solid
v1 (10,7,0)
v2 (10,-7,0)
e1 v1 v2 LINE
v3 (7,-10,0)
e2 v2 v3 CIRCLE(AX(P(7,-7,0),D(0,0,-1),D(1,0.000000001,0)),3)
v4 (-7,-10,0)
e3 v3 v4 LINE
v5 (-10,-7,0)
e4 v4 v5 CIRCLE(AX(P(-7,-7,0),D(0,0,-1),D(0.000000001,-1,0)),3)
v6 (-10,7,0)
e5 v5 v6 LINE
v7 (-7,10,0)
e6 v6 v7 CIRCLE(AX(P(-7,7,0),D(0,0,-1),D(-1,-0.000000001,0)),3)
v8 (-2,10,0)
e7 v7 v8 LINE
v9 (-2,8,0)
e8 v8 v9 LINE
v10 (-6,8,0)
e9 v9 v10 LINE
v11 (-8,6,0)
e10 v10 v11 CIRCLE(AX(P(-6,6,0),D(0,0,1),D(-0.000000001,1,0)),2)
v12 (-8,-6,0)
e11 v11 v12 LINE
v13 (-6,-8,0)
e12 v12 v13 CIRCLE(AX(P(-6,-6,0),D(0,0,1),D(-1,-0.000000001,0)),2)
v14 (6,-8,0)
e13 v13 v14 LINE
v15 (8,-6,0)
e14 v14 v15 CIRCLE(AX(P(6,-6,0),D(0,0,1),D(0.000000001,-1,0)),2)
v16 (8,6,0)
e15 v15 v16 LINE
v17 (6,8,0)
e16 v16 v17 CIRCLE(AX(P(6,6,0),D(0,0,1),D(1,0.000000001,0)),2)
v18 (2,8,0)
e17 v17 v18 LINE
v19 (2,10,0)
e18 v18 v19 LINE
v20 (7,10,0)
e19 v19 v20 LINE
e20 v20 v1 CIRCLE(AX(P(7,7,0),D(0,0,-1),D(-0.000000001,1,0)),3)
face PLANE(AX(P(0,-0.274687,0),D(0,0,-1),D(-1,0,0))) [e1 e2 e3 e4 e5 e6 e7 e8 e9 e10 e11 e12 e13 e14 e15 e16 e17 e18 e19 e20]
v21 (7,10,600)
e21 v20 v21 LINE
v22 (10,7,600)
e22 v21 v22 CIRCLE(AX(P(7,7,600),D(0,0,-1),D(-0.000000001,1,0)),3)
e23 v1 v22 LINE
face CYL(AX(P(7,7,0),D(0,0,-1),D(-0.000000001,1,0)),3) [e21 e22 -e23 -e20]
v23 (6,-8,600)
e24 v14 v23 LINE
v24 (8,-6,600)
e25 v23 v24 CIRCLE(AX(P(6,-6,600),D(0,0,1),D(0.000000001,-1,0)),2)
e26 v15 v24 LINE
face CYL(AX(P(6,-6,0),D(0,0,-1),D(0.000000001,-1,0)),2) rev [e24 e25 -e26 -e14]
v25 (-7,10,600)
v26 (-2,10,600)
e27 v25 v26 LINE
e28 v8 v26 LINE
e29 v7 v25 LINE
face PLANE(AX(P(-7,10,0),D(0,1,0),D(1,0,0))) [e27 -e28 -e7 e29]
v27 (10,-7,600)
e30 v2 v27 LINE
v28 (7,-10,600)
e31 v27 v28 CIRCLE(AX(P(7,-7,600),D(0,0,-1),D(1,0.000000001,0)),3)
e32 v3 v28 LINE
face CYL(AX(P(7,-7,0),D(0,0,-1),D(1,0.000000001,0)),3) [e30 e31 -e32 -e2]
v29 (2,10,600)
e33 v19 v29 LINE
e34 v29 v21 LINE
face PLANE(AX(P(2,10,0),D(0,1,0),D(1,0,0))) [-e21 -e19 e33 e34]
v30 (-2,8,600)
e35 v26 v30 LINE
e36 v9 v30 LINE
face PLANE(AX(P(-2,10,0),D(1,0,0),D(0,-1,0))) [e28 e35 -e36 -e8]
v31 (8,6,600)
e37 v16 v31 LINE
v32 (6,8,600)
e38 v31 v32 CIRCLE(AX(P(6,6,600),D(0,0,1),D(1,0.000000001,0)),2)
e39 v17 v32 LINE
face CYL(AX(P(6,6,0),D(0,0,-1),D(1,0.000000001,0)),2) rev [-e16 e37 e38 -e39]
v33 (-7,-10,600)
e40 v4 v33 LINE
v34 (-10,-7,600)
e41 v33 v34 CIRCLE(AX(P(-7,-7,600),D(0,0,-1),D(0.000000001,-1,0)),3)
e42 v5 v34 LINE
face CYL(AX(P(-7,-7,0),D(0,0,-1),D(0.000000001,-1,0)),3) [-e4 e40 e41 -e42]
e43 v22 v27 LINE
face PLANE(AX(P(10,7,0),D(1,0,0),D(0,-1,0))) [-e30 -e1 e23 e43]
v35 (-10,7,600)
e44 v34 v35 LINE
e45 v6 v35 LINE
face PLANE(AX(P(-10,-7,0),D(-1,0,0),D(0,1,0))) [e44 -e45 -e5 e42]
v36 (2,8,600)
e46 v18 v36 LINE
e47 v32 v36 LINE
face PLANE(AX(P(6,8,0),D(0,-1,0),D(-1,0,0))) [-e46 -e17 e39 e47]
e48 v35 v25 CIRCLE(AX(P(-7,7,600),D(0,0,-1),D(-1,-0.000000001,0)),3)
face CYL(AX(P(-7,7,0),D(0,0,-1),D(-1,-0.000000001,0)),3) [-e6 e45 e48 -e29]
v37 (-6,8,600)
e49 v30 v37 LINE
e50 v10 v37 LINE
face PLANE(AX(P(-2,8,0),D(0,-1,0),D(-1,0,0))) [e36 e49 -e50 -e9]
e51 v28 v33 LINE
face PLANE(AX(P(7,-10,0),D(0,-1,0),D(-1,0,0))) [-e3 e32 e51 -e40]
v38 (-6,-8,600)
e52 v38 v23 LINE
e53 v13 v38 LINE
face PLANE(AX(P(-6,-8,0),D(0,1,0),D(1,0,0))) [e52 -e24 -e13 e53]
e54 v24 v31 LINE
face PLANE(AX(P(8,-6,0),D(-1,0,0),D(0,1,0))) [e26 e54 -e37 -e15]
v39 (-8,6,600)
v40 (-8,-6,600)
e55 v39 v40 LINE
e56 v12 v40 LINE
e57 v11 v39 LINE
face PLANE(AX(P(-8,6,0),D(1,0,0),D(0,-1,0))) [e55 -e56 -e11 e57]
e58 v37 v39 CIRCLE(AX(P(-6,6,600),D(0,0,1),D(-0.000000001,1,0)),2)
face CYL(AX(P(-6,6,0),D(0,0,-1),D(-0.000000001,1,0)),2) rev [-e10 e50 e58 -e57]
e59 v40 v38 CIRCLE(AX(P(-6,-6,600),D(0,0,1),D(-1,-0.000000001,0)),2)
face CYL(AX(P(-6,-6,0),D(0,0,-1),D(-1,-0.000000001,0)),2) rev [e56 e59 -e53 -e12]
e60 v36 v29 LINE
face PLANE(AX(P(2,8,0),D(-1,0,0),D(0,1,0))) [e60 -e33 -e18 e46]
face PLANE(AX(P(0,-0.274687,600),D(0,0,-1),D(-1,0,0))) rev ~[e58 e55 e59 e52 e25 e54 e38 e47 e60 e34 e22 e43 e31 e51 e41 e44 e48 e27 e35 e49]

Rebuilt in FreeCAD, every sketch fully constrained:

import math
import FreeCAD as App
import Part
import Sketcher

V = App.Vector

doc = App.newDocument("Part")
params = doc.addObject("Spreadsheet::Sheet", "Params")
for row, (alias, value) in enumerate([
    ("sketch1_radius", "3 mm"),
    ("sketch1_radius2", "2 mm"),
    ("sketch1_width", "14 mm"),
    ("sketch1_width2", "5 mm"),
    ("sketch1_width3", "4 mm"),
    ("pad1_length", "600 mm"),
], start=1):
    params.set(f"A{row}", alias)
    params.set(f"B{row}", "=" + value)
    params.setAlias(f"B{row}", alias)

body = doc.addObject("PartDesign::Body", "Body")

# Sketch on XY plane
sketch1 = doc.addObject("Sketcher::SketchObject", "Sketch")
body.addObject(sketch1)
sketch1.AttachmentSupport = (doc.XY_Plane, [""])
sketch1.MapMode = "FlatFace"
sketch1.addGeometry([
    Part.LineSegment(V(-10, 7, 0), V(-10, -7, 0)),  # 0
    Part.ArcOfCircle(Part.Circle(V(-7, -7, 0), V(0, 0, 1), 3), math.radians(180), math.radians(270)),  # 1
    Part.LineSegment(V(-7, -10, 0), V(7, -10, 0)),  # 2
    Part.ArcOfCircle(Part.Circle(V(7, -7, 0), V(0, 0, 1), 3), math.radians(-90), math.radians(0)),  # 3
    Part.LineSegment(V(10, -7, 0), V(10, 7, 0)),  # 4
    Part.ArcOfCircle(Part.Circle(V(7, 7, 0), V(0, 0, 1), 3), math.radians(0), math.radians(90)),  # 5
    Part.LineSegment(V(7, 10, 0), V(2, 10, 0)),  # 6
    Part.LineSegment(V(2, 10, 0), V(2, 8, 0)),  # 7
    Part.LineSegment(V(2, 8, 0), V(6, 8, 0)),  # 8
    Part.ArcOfCircle(Part.Circle(V(6, 6, 0), V(0, 0, 1), 2), math.radians(0), math.radians(90)),  # 9
    Part.LineSegment(V(8, 6, 0), V(8, -6, 0)),  # 10
    Part.ArcOfCircle(Part.Circle(V(6, -6, 0), V(0, 0, 1), 2), math.radians(-90), math.radians(0)),  # 11
    Part.LineSegment(V(6, -8, 0), V(-6, -8, 0)),  # 12
    Part.ArcOfCircle(Part.Circle(V(-6, -6, 0), V(0, 0, 1), 2), math.radians(-180), math.radians(-90)),  # 13
    Part.LineSegment(V(-8, -6, 0), V(-8, 6, 0)),  # 14
    Part.ArcOfCircle(Part.Circle(V(-6, 6, 0), V(0, 0, 1), 2), math.radians(90), math.radians(180)),  # 15
    Part.LineSegment(V(-6, 8, 0), V(-2, 8, 0)),  # 16
    Part.LineSegment(V(-2, 8, 0), V(-2, 10, 0)),  # 17
    Part.LineSegment(V(-2, 10, 0), V(-7, 10, 0)),  # 18
    Part.ArcOfCircle(Part.Circle(V(-7, 7, 0), V(0, 0, 1), 3), math.radians(90), math.radians(180)),  # 19
], False)
sketch1.addConstraint([
    Sketcher.Constraint("Tangent", 0, 2, 1, 1),
    Sketcher.Constraint("Tangent", 1, 2, 2, 1),
    Sketcher.Constraint("Tangent", 2, 2, 3, 1),
    Sketcher.Constraint("Tangent", 3, 2, 4, 1),
    Sketcher.Constraint("Tangent", 4, 2, 5, 1),
    Sketcher.Constraint("Tangent", 5, 2, 6, 1),
    Sketcher.Constraint("Coincident", 6, 2, 7, 1),
    Sketcher.Constraint("Coincident", 7, 2, 8, 1),
    Sketcher.Constraint("Tangent", 8, 2, 9, 2),
    Sketcher.Constraint("Tangent", 9, 1, 10, 1),
    Sketcher.Constraint("Tangent", 10, 2, 11, 2),
    Sketcher.Constraint("Tangent", 11, 1, 12, 1),
    Sketcher.Constraint("Tangent", 12, 2, 13, 2),
    Sketcher.Constraint("Tangent", 13, 1, 14, 1),
    Sketcher.Constraint("Tangent", 14, 2, 15, 2),
    Sketcher.Constraint("Tangent", 15, 1, 16, 1),
    Sketcher.Constraint("Coincident", 16, 2, 17, 1),
    Sketcher.Constraint("Coincident", 17, 2, 18, 1),
    Sketcher.Constraint("Tangent", 18, 2, 19, 1),
    Sketcher.Constraint("Tangent", 19, 2, 0, 1),
    Sketcher.Constraint("Vertical", 0),
    Sketcher.Constraint("Horizontal", 2),
    Sketcher.Constraint("Vertical", 4),
    Sketcher.Constraint("Horizontal", 6),
    Sketcher.Constraint("Vertical", 7),
    Sketcher.Constraint("Horizontal", 8),
    Sketcher.Constraint("Vertical", 10),
    Sketcher.Constraint("Horizontal", 12),
    Sketcher.Constraint("Vertical", 14),
    Sketcher.Constraint("Horizontal", 16),
    Sketcher.Constraint("Vertical", 17),
    Sketcher.Constraint("Horizontal", 18),
    Sketcher.Constraint("Equal", 1, 3),
    Sketcher.Constraint("Equal", 3, 5),
    Sketcher.Constraint("Equal", 9, 11),
    Sketcher.Constraint("Equal", 11, 13),
    Sketcher.Constraint("Equal", 13, 15),
    Sketcher.Constraint("Equal", 5, 19),
    Sketcher.Constraint("Symmetric", 1, 3, 5, 3, -1, 1),
    Sketcher.Constraint("Symmetric", 9, 3, 13, 3, -1, 1),
    Sketcher.Constraint("Symmetric", 7, 2, 16, 2, -2),
    Sketcher.Constraint("Horizontal", 5, 3, 19, 3),
    Sketcher.Constraint("Equal", 2, 0),
    Sketcher.Constraint("Equal", 12, 10),
    Sketcher.Constraint("Radius", 1, 3.0),
    Sketcher.Constraint("Radius", 9, 2.0),
    Sketcher.Constraint("DistanceX", 2, 1, 2, 2, 14.0),
    Sketcher.Constraint("DistanceX", 6, 2, 6, 1, 5.0),
    Sketcher.Constraint("DistanceX", 8, 1, 8, 2, 4.0),
])
sketch1.setExpression("Constraints[44]", "Params.sketch1_radius")
sketch1.setExpression("Constraints[45]", "Params.sketch1_radius2")
sketch1.setExpression("Constraints[46]", "Params.sketch1_width")
sketch1.setExpression("Constraints[47]", "Params.sketch1_width2")
sketch1.setExpression("Constraints[48]", "Params.sketch1_width3")
pad1 = doc.addObject("PartDesign::Pad", "Pad")
body.addObject(pad1)
pad1.Profile = sketch1
pad1.setExpression("Length", "Params.pad1_length")

doc.recompute()
